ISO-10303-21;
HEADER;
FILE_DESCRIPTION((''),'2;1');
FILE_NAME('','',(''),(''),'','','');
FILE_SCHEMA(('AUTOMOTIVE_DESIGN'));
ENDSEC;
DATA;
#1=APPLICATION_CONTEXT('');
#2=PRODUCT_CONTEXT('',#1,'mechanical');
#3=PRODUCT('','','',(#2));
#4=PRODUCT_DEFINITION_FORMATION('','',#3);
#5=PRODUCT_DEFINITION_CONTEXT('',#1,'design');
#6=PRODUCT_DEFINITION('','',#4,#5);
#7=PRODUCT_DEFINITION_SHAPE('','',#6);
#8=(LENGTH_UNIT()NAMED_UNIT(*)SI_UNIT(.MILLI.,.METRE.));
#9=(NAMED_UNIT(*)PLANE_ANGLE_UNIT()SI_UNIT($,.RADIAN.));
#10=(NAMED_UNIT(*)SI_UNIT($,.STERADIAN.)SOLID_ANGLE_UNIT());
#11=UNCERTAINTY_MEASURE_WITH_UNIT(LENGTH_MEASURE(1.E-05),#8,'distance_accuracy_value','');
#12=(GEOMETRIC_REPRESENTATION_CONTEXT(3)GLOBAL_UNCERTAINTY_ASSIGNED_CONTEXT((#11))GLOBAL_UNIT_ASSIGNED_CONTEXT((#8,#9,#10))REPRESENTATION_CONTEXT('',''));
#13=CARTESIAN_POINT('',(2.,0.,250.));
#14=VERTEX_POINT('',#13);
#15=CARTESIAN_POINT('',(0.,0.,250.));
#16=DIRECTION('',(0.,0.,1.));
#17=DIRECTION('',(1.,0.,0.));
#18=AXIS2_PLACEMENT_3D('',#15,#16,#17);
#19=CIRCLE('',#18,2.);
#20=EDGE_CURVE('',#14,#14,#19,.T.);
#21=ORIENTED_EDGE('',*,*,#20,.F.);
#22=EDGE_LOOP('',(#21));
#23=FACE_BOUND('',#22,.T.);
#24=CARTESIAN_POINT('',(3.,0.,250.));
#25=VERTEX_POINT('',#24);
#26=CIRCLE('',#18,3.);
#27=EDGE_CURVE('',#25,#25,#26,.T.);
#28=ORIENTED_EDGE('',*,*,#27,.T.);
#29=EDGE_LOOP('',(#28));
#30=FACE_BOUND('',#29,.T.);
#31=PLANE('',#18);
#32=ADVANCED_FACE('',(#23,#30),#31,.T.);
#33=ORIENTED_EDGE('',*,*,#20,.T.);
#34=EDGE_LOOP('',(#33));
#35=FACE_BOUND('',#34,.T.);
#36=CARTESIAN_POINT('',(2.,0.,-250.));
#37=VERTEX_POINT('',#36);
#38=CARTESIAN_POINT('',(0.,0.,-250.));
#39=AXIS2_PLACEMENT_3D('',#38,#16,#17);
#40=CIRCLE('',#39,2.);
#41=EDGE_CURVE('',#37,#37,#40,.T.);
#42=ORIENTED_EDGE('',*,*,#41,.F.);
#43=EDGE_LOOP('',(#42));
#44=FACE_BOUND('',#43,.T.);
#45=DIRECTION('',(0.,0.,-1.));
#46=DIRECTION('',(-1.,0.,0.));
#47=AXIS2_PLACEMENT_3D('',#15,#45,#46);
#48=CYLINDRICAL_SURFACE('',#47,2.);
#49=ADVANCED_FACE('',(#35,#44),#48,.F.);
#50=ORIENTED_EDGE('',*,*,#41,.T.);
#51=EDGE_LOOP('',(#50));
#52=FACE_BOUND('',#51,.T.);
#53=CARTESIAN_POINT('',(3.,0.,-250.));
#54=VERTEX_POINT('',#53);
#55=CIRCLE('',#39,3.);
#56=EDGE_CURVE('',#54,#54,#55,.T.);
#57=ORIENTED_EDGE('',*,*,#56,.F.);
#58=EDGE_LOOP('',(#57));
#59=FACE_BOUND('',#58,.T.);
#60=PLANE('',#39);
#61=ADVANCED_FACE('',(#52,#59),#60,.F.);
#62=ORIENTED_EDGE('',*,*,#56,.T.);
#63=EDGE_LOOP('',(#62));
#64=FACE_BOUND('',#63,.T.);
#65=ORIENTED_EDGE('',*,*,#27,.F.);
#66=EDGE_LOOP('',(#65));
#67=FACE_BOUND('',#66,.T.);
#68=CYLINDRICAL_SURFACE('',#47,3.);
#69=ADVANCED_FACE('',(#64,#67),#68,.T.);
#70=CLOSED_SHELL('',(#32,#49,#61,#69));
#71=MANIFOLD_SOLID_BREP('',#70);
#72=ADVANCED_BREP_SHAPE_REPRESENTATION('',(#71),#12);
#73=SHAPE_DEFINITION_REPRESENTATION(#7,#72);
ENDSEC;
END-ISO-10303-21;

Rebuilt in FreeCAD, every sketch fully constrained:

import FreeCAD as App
import Part
import Sketcher

V = App.Vector
Q = App.Units.Quantity

doc = App.newDocument("Part")
body = doc.addObject("PartDesign::Body", "Body")

sketch1 = doc.addObject("Sketcher::SketchObject", "Sketch")
body.addObject(sketch1)
sketch1.AttachmentSupport = (doc.XY_Plane, [""])
sketch1.MapMode = "FlatFace"
sketch1.addGeometry([
    Part.Circle(V(0, 0, 0), V(0, 0, 1), 3),
    Part.Circle(V(0, 0, 0), V(0, 0, 1), 2),
], False)
sketch1.addConstraint([
    Sketcher.Constraint("Coincident", 0, 3, -1, 1),
    Sketcher.Constraint("Coincident", 1, 3, -1, 1),
    Sketcher.Constraint("Diameter", 0, Q("6 mm")),
    Sketcher.Constraint("Diameter", 1, Q("4 mm")),
])
pad1 = doc.addObject("PartDesign::Pad", "Pad")
body.addObject(pad1)
pad1.Profile = sketch1
pad1.Length = 500
pad1.Midplane = True

doc.recompute()
